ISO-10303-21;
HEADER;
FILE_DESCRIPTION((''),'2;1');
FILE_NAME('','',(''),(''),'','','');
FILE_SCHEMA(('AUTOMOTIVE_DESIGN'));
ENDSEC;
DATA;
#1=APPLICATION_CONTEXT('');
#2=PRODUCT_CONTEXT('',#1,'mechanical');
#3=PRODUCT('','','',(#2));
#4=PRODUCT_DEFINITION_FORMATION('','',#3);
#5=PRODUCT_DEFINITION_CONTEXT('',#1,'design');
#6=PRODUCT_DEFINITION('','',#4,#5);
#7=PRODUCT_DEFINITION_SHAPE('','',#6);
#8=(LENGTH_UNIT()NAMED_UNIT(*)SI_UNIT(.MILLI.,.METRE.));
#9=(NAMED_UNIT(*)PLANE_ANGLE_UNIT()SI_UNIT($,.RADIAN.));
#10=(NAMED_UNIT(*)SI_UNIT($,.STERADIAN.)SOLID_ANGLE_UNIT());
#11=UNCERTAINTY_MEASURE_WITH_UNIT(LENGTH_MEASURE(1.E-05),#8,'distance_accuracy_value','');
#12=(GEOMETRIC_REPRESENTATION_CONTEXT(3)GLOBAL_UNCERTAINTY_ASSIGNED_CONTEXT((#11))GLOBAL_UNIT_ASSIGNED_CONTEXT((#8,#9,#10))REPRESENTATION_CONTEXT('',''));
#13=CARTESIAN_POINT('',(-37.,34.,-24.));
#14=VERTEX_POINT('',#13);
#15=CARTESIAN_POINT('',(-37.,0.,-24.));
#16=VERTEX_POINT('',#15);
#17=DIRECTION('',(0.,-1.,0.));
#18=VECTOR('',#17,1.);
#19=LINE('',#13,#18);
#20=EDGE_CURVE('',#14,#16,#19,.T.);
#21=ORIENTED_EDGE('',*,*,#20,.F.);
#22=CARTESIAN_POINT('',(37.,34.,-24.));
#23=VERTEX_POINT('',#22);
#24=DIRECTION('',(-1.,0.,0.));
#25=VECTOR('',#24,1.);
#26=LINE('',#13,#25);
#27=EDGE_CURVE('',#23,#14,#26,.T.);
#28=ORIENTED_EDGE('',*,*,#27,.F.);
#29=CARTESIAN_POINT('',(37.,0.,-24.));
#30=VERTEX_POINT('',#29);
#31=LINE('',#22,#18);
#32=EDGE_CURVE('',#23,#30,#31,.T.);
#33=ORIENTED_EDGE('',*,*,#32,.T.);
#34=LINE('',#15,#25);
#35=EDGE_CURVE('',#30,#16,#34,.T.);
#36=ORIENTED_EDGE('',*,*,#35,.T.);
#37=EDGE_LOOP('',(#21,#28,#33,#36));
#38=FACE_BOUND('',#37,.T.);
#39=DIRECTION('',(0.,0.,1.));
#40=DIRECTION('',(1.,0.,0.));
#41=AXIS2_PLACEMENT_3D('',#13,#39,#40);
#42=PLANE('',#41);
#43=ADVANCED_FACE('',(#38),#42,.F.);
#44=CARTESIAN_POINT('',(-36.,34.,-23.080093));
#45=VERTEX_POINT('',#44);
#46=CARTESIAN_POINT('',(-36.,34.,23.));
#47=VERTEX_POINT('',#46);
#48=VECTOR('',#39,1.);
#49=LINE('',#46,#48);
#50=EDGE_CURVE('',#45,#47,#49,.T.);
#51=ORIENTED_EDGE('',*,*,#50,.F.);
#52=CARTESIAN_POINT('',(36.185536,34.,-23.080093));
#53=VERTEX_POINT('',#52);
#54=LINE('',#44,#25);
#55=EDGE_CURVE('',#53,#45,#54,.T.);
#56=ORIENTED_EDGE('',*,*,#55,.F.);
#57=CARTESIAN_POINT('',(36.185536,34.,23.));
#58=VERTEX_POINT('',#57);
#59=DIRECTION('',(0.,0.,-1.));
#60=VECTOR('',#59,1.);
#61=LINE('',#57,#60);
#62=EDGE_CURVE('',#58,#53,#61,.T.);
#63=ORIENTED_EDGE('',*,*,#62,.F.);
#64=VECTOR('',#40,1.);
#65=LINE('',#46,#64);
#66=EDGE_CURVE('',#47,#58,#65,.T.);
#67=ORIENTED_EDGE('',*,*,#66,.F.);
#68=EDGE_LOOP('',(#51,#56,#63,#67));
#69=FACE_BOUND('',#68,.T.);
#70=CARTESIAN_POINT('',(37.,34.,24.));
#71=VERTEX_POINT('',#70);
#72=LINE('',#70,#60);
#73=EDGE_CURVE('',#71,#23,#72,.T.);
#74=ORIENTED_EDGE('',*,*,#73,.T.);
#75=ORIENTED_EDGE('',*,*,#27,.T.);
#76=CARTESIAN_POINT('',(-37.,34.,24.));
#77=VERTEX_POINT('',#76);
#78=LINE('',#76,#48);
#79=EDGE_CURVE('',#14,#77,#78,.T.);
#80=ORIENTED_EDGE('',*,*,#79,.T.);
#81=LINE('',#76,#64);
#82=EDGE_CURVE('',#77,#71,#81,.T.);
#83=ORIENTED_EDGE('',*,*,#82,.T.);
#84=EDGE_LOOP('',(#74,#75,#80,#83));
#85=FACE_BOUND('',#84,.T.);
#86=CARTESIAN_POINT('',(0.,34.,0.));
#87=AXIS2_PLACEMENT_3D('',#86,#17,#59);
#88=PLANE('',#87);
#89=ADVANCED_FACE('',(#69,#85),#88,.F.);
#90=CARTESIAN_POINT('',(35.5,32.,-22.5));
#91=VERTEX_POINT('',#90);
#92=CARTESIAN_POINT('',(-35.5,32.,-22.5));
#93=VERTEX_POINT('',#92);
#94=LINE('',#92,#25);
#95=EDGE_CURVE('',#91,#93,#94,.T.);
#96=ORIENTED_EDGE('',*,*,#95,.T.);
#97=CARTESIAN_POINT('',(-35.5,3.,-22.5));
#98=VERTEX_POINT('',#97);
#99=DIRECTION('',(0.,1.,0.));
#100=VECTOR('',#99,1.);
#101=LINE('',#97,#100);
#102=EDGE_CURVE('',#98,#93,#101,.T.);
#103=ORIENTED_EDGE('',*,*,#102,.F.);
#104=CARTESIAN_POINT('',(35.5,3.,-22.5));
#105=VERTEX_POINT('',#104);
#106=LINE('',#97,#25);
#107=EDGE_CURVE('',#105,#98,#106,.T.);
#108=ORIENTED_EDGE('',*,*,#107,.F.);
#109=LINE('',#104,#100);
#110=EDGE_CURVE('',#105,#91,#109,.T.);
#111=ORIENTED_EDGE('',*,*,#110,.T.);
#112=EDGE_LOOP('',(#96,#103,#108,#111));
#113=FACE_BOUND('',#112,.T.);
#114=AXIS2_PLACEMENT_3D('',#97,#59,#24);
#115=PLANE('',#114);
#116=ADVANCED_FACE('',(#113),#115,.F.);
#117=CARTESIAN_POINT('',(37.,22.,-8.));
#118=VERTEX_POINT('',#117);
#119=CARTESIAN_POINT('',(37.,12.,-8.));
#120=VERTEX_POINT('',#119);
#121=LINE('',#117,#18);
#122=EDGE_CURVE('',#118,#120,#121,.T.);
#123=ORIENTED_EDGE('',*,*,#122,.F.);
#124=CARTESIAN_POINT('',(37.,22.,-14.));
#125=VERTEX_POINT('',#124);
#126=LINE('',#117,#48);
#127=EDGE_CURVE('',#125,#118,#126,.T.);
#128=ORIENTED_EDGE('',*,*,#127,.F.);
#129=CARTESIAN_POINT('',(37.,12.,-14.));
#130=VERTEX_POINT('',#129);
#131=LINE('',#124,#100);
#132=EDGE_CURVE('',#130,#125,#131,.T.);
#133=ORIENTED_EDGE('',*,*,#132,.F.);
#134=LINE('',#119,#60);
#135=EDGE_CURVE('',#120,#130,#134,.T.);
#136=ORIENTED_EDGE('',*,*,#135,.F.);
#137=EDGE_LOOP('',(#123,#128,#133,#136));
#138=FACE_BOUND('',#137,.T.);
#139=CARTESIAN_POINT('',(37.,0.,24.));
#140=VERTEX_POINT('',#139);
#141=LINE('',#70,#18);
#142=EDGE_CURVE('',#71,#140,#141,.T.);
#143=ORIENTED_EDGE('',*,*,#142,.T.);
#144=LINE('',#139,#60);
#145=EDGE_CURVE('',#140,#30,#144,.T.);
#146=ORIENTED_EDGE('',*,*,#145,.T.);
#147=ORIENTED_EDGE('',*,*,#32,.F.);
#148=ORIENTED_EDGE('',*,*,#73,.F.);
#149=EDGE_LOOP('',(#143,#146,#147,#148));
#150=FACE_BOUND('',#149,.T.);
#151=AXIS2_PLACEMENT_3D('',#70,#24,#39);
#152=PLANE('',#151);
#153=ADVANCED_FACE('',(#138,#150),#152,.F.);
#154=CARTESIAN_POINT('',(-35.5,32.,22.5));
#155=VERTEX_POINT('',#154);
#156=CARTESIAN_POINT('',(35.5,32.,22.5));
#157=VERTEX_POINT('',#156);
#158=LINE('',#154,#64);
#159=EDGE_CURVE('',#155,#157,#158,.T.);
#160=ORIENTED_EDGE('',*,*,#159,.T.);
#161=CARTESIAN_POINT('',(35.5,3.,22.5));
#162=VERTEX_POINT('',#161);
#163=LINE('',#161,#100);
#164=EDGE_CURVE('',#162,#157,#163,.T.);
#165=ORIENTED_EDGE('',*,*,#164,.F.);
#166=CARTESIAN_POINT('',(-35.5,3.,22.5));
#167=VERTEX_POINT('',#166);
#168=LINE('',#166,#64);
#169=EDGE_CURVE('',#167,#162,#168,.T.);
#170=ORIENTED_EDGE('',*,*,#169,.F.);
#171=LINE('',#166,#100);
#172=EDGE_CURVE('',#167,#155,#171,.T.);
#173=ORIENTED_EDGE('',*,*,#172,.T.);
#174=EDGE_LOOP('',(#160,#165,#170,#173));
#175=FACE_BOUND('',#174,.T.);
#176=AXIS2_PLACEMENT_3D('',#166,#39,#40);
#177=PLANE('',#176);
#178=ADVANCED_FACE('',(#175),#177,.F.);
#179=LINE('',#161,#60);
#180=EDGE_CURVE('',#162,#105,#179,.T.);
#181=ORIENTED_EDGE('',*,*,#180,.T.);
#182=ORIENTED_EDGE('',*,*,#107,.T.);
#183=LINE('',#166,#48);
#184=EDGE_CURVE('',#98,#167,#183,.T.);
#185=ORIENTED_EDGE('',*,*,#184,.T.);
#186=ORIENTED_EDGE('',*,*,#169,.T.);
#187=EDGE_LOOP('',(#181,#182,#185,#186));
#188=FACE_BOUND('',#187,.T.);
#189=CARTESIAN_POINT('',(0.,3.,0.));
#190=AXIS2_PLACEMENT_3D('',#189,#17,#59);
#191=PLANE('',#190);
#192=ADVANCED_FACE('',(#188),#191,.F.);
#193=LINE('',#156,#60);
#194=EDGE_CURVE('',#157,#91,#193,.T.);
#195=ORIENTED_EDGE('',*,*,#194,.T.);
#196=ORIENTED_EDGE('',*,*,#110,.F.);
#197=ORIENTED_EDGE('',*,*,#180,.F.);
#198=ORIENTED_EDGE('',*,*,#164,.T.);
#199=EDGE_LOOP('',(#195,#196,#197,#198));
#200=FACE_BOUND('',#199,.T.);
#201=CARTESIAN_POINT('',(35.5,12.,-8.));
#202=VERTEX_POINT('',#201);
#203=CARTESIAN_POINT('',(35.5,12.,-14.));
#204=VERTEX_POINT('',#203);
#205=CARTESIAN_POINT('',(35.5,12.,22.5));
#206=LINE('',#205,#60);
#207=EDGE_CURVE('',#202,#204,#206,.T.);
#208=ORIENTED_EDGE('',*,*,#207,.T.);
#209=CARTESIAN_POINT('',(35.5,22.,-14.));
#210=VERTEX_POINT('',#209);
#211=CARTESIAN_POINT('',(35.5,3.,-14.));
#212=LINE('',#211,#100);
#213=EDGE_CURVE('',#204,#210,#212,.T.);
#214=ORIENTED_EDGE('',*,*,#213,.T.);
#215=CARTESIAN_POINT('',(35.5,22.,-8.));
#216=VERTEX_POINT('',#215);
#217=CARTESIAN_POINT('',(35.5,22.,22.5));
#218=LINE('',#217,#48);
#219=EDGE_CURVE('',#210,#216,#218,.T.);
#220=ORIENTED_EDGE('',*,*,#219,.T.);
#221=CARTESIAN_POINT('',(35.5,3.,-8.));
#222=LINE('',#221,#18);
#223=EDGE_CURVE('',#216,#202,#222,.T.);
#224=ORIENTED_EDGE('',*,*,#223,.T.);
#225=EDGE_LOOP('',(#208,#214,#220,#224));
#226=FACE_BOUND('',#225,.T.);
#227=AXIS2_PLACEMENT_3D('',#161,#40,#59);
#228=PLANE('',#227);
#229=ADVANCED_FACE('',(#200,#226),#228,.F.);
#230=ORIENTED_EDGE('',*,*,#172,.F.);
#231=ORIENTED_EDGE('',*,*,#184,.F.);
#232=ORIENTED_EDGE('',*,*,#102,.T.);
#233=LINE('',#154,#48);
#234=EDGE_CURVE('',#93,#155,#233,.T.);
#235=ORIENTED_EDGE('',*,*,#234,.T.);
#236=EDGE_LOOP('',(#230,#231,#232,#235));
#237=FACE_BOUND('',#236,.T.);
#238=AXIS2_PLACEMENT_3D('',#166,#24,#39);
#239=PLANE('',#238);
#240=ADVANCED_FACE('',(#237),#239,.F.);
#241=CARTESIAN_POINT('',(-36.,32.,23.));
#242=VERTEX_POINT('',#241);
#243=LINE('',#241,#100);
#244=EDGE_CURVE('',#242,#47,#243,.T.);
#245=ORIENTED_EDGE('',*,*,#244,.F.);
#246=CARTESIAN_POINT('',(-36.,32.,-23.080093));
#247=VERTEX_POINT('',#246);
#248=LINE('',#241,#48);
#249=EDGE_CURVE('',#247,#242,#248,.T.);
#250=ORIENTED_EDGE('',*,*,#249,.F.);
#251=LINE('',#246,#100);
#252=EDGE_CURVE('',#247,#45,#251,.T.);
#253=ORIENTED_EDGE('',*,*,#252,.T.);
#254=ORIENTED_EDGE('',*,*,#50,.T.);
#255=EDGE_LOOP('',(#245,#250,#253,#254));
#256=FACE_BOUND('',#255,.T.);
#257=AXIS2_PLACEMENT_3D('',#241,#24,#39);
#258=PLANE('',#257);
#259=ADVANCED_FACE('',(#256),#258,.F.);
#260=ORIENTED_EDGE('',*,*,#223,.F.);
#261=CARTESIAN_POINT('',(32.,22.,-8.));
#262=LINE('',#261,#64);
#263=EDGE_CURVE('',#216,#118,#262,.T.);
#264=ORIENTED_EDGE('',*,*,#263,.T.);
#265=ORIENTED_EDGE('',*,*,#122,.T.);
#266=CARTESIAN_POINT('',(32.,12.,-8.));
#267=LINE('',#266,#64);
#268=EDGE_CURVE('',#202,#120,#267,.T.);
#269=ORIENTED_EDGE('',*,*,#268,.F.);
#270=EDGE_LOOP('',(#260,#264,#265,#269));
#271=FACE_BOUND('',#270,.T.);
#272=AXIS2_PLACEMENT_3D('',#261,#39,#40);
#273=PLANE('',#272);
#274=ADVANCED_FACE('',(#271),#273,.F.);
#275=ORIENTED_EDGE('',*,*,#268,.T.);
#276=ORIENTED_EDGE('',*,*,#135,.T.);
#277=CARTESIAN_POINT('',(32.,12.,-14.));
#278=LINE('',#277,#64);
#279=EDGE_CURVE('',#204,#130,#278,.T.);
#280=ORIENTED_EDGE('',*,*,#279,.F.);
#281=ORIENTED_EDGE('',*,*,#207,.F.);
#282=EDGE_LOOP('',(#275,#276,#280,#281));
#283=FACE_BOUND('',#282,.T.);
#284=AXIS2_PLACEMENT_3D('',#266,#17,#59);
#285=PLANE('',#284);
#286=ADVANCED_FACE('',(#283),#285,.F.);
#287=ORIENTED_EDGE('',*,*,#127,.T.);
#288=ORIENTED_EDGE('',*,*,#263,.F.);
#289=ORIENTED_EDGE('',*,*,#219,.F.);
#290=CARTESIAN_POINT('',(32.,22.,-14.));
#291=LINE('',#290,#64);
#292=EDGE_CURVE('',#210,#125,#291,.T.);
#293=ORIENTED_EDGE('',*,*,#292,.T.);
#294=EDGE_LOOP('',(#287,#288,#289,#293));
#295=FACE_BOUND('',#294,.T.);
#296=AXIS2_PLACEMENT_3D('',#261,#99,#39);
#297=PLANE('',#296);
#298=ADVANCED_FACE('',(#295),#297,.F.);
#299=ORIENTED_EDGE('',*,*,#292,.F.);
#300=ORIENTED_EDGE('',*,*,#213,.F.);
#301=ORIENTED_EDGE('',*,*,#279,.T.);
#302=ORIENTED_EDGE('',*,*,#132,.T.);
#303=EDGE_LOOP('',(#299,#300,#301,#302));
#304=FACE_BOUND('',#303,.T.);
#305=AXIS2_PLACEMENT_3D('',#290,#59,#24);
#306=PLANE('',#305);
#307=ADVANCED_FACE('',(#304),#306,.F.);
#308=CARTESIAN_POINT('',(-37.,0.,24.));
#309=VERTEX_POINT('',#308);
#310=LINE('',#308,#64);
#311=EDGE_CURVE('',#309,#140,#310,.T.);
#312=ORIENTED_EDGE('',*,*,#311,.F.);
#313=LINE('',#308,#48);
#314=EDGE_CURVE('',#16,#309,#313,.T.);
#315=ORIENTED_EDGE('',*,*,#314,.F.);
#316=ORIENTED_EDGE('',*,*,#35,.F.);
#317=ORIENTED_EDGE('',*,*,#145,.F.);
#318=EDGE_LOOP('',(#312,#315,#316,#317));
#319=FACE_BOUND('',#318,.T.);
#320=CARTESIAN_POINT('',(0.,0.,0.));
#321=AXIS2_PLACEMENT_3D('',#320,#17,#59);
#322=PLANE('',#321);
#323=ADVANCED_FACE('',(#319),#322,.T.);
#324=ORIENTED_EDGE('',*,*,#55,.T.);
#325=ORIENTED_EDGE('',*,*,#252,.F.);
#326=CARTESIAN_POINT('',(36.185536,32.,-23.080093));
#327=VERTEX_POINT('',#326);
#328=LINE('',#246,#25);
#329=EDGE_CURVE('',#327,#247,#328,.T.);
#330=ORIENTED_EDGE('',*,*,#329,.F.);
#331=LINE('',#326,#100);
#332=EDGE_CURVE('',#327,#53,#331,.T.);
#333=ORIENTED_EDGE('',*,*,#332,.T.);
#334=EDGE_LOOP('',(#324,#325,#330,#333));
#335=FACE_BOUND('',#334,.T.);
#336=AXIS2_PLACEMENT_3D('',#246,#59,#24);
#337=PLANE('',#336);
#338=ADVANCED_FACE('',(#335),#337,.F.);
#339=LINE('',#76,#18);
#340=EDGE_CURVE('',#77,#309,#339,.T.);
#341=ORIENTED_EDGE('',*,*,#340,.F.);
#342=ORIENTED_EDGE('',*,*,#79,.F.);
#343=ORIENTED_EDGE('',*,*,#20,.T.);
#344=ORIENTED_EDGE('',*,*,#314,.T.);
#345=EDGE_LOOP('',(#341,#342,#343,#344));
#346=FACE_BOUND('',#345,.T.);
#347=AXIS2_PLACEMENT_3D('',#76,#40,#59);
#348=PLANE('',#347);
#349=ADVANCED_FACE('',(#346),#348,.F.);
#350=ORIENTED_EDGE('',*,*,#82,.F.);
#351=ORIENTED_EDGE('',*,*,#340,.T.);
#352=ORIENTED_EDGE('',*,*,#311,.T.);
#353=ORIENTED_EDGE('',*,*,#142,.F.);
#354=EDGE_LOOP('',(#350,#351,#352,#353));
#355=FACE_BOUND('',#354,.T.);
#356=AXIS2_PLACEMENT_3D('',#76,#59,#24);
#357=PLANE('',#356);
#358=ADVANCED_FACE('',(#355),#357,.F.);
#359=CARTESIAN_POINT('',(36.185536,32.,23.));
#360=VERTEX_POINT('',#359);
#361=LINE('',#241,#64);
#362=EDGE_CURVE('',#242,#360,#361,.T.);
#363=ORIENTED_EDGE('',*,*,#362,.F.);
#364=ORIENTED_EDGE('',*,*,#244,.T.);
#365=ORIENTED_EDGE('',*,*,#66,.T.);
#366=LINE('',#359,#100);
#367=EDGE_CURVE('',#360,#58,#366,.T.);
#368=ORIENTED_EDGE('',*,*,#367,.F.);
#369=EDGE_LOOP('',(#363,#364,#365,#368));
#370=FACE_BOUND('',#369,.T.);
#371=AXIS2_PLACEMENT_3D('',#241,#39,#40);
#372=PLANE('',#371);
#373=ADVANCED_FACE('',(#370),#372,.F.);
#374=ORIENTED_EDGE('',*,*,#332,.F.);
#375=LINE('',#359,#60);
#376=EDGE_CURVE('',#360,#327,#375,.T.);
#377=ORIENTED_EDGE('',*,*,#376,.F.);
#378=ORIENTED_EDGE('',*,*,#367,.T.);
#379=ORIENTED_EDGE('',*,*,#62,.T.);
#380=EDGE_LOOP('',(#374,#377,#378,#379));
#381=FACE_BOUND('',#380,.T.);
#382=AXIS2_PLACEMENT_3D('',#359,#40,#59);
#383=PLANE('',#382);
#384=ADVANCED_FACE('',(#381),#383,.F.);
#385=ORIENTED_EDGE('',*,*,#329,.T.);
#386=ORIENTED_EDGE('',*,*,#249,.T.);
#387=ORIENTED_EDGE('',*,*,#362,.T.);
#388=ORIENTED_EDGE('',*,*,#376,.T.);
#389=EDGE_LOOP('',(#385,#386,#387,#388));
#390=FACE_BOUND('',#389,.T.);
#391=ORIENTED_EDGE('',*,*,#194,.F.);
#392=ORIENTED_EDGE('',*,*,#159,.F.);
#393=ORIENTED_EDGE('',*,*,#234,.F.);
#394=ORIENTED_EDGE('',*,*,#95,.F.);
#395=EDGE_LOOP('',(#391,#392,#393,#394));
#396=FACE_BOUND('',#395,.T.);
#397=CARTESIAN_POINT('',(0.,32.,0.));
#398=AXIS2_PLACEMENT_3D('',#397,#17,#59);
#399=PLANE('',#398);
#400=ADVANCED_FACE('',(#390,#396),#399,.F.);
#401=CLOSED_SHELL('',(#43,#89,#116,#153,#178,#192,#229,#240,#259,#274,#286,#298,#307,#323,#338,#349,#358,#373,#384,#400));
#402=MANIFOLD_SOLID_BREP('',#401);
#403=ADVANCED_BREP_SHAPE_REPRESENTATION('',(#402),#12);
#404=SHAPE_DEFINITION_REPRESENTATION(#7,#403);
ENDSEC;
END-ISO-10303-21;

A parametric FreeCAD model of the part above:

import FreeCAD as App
import Part
import Sketcher

V = App.Vector
Q = App.Units.Quantity


def add_polygon(sketch, points):
    """Adds a closed chain of lines whose ends are joined by coincident constraints."""
    first, n = sketch.GeometryCount, len(points)
    for a, b in zip(points, points[1:] + points[:1]):
        sketch.addGeometry(Part.LineSegment(App.Vector(*a, 0), App.Vector(*b, 0)), False)
    for i in range(n):
        sketch.addConstraint(Sketcher.Constraint("Coincident", first + i, 2, first + (i + 1) % n, 1))

doc = App.newDocument("Part")
params = doc.addObject("Spreadsheet::Sheet", "Params")
for row, (alias, value) in enumerate([
    ("sketch1_width", "74 mm"),
    ("sketch1_height", "48 mm"),
    ("pad1_length", "34 mm"),
    ("sketch2_width", "71 mm"),
    ("sketch2_height", "45 mm"),
    ("pocket1_length", "31 mm"),
    ("pocket2_length", "2 mm"),
    ("sketch4_width", "10 mm"),
    ("sketch4_height", "6 mm"),
    ("pocket3_length", "5 mm"),
], start=1):
    params.set(f"A{row}", alias)
    params.set(f"B{row}", "=" + value)
    params.setAlias(f"B{row}", alias)

body = doc.addObject("PartDesign::Body", "Body")

# Sketch on XZ plane
sketch1 = body.newObject("Sketcher::SketchObject", "Sketch")
sketch1.AttachmentSupport = (doc.getObject("XZ_Plane"), [""])
sketch1.MapMode = "FlatFace"
add_polygon(sketch1, [(-37, -24), (-37, 24), (37, 24), (37, -24)])  # lines 0-3
sketch1.addConstraint([
    Sketcher.Constraint("Vertical", 0),
    Sketcher.Constraint("Horizontal", 1),
    Sketcher.Constraint("Vertical", 2),
    Sketcher.Constraint("Horizontal", 3),
    Sketcher.Constraint("Symmetric", 0, 2, 2, 2, -1, 1),
    Sketcher.Constraint("DistanceX", 1, 1, 1, 2, Q("74 mm")),
    Sketcher.Constraint("DistanceY", 0, 1, 0, 2, Q("48 mm")),
])
sketch1.setExpression("Constraints[9]", "Params.sketch1_width")
sketch1.setExpression("Constraints[10]", "Params.sketch1_height")
pad1 = body.newObject("PartDesign::Pad", "Pad")
pad1.Profile = sketch1
pad1.setExpression("Length", "Params.pad1_length")
pad1.Reversed = True

# Sketch on XZ plane
sketch2 = body.newObject("Sketcher::SketchObject", "Sketch001")
sketch2.AttachmentSupport = (doc.getObject("XZ_Plane"), [""])
sketch2.MapMode = "FlatFace"
sketch2.AttachmentOffset = App.Placement(V(0, 0, -34), App.Rotation())
add_polygon(sketch2, [(-36, -22), (-36, 22), (36, 22), (36, -22)])  # lines 0-3
sketch2.addConstraint([
    Sketcher.Constraint("Vertical", 0),
    Sketcher.Constraint("Horizontal", 1),
    Sketcher.Constraint("Vertical", 2),
    Sketcher.Constraint("Horizontal", 3),
    Sketcher.Constraint("Symmetric", 0, 2, 2, 2, -1, 1),
    Sketcher.Constraint("DistanceX", 1, 1, 1, 2, Q("71 mm")),
    Sketcher.Constraint("DistanceY", 0, 1, 0, 2, Q("45 mm")),
])
sketch2.setExpression("Constraints[9]", "Params.sketch2_width")
sketch2.setExpression("Constraints[10]", "Params.sketch2_height")
pocket1 = body.newObject("PartDesign::Pocket", "Pocket")
pocket1.Profile = sketch2
pocket1.setExpression("Length", "Params.pocket1_length")
pocket1.Reversed = True

# Sketch on XZ plane
sketch3 = body.newObject("Sketcher::SketchObject", "Sketch002")
sketch3.AttachmentSupport = (doc.getObject("XZ_Plane"), [""])
sketch3.MapMode = "FlatFace"
sketch3.AttachmentOffset = App.Placement(V(0, 0, -34), App.Rotation())
add_polygon(sketch3, [(-36, -23), (-36, 23), (36, 23), (36, -23)])  # lines 0-3
sketch3.addConstraint([
    Sketcher.Constraint("Vertical", 0),
    Sketcher.Constraint("Horizontal", 1),
    Sketcher.Constraint("Vertical", 2),
    Sketcher.Constraint("Horizontal", 3),
    Sketcher.Constraint("DistanceX", 0, 2, -1, 1, Q("36 mm")),
    Sketcher.Constraint("DistanceY", -1, 1, 0, 2, Q("23 mm")),
    Sketcher.Constraint("DistanceX", 1, 1, 1, 2, Q("72.185536 mm")),
    Sketcher.Constraint("DistanceY", 0, 1, 0, 2, Q("46.080093 mm")),
])
pocket2 = body.newObject("PartDesign::Pocket", "Pocket001")
pocket2.Profile = sketch3
pocket2.setExpression("Length", "Params.pocket2_length")
pocket2.Reversed = True

# Sketch on YZ plane
sketch4 = body.newObject("Sketcher::SketchObject", "Sketch003")
sketch4.AttachmentSupport = (doc.getObject("YZ_Plane"), [""])
sketch4.MapMode = "FlatFace"
sketch4.AttachmentOffset = App.Placement(V(0, 0, 37), App.Rotation())
add_polygon(sketch4, [(22, -8), (12, -8), (12, -14), (22, -14)])  # lines 0-3
sketch4.addConstraint([
    Sketcher.Constraint("Horizontal", 0),
    Sketcher.Constraint("Vertical", 1),
    Sketcher.Constraint("Horizontal", 2),
    Sketcher.Constraint("Vertical", 3),
    Sketcher.Constraint("DistanceX", 0, 2, 0, 1, Q("10 mm")),
    Sketcher.Constraint("DistanceY", 1, 2, 1, 1, Q("6 mm")),
    Sketcher.Constraint("DistanceX", -1, 1, 0, 2, Q("12 mm")),
    Sketcher.Constraint("DistanceY", 0, 2, -1, 1, Q("8 mm")),
])
sketch4.setExpression("Constraints[8]", "Params.sketch4_width")
sketch4.setExpression("Constraints[9]", "Params.sketch4_height")
pocket3 = body.newObject("PartDesign::Pocket", "Pocket002")
pocket3.Profile = sketch4
pocket3.setExpression("Length", "Params.pocket3_length")

doc.recompute()
